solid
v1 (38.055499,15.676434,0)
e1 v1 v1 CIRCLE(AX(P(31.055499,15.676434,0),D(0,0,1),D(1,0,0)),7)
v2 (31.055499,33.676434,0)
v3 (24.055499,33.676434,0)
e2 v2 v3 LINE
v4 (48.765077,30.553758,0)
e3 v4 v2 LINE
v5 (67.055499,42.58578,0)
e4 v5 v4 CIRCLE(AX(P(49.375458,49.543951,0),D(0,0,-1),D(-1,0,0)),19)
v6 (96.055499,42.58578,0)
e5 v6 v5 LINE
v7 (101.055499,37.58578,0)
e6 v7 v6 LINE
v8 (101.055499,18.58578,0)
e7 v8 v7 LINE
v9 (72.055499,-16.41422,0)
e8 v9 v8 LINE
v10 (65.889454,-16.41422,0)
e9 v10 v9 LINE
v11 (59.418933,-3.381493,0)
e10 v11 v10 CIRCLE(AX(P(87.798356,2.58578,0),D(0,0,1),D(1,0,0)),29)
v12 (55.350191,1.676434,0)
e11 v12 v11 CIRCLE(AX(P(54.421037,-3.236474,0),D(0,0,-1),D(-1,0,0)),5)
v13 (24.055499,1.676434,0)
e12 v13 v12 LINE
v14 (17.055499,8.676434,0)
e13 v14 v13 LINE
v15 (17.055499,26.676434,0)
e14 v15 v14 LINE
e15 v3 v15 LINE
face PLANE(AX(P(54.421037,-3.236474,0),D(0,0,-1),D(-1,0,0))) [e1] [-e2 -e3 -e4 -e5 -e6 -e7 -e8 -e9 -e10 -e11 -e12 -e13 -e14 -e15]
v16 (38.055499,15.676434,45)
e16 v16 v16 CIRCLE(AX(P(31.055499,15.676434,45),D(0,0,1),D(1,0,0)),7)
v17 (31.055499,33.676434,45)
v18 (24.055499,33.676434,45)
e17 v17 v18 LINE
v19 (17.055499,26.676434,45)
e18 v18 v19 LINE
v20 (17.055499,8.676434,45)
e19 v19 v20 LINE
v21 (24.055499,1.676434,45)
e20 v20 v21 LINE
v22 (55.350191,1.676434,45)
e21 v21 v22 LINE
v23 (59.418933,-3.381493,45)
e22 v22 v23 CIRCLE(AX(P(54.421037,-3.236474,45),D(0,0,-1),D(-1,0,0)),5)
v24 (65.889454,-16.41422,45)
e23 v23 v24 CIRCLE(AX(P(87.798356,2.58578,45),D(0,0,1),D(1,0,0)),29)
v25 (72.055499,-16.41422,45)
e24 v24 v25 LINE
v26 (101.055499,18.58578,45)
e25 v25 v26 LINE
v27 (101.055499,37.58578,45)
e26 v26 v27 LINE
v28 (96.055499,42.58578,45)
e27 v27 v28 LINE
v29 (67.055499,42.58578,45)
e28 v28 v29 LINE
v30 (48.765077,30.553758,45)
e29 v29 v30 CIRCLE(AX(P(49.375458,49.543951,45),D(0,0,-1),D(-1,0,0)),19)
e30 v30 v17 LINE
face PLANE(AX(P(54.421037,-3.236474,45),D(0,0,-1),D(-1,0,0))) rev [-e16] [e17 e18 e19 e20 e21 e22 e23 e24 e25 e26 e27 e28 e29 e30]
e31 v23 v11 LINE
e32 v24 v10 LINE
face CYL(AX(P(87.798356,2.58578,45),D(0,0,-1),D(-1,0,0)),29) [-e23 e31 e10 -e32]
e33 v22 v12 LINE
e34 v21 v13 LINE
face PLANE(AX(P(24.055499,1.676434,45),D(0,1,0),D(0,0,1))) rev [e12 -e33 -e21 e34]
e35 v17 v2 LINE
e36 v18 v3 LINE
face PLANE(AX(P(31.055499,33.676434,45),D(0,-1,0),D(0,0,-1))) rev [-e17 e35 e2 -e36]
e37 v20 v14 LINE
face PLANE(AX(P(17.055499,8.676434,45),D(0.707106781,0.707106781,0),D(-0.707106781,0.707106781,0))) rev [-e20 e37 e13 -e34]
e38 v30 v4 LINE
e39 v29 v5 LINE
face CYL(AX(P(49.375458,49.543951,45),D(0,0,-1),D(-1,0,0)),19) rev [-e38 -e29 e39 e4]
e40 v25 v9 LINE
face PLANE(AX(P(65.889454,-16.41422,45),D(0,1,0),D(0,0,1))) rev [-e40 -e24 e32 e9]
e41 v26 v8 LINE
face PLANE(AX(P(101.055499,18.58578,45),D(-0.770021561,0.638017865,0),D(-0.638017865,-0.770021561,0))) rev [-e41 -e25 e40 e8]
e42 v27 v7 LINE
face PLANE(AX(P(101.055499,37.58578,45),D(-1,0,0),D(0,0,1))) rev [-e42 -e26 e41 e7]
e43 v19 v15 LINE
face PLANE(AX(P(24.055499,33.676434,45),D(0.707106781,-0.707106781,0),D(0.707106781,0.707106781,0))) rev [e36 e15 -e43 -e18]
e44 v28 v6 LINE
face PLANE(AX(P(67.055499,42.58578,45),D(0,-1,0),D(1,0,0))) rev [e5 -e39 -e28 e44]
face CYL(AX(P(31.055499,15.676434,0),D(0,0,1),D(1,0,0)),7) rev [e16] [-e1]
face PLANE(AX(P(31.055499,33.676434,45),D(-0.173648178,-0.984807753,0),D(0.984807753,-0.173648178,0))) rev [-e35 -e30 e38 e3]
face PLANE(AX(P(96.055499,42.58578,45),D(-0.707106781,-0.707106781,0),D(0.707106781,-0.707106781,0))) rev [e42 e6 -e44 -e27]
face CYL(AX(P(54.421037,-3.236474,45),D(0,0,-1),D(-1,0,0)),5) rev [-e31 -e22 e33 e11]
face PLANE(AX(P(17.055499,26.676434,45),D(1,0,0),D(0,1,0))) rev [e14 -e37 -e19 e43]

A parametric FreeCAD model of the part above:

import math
import FreeCAD as App
import Part
import Sketcher

V = App.Vector
Q = App.Units.Quantity

doc = App.newDocument("Part")
params = doc.addObject("Spreadsheet::Sheet", "Params")
for row, (alias, value) in enumerate([
    ("sketch1_radius", "19 mm"),
    ("sketch1_radius2", "5 mm"),
    ("sketch1_radius3", "29 mm"),
    ("sketch1_width", "29 mm"),
    ("sketch1_width2", "7 mm"),
    ("pad1_length", "45 mm"),
    ("sketch2_diameter", "14 mm"),
    ("pocket1_length", "45 mm"),
], start=1):
    params.set(f"A{row}", alias)
    params.set(f"B{row}", "=" + value)
    params.setAlias(f"B{row}", alias)

body = doc.addObject("PartDesign::Body", "Body")

# Sketch on XY plane
sketch1 = body.newObject("Sketcher::SketchObject", "Sketch")
sketch1.AttachmentSupport = (doc.getObject("XY_Plane"), [""])
sketch1.MapMode = "FlatFace"
sketch1.addGeometry(Part.LineSegment(V(96.055499, 42.58578, 0), V(67.055499, 42.58578, 0)), False)
sketch1.addGeometry(Part.ArcOfCircle(Part.Circle(V(49.375458, 49.543951, 0), V(0, 0, 1), 19), math.radians(-91.840959), math.radians(-21.482654)), False)
sketch1.addGeometry(Part.LineSegment(V(48.765077, 30.553758, 0), V(31.055499, 33.676434, 0)), False)
sketch1.addGeometry(Part.LineSegment(V(31.055499, 33.676434, 0), V(24.055499, 33.676434, 0)), False)
sketch1.addGeometry(Part.LineSegment(V(24.055499, 33.676434, 0), V(17.055499, 26.676434, 0)), False)
sketch1.addGeometry(Part.LineSegment(V(17.055499, 26.676434, 0), V(17.055499, 8.676434, 0)), False)
sketch1.addGeometry(Part.LineSegment(V(17.055499, 8.676434, 0), V(24.055499, 1.676434, 0)), False)
sketch1.addGeometry(Part.LineSegment(V(24.055499, 1.676434, 0), V(55.350191, 1.676434, 0)), False)
sketch1.addGeometry(Part.ArcOfCircle(Part.Circle(V(54.421037, -3.236474, 0), V(0, 0, 1), 5), math.radians(-1.662029), math.radians(79.290421)), False)
sketch1.addGeometry(Part.ArcOfCircle(Part.Circle(V(87.798356, 2.58578, 0), V(0, 0, 1), 29), math.radians(-168.125537), math.radians(-139.067275)), False)
sketch1.addGeometry(Part.LineSegment(V(65.889454, -16.41422, 0), V(72.055499, -16.41422, 0)), False)
sketch1.addGeometry(Part.LineSegment(V(72.055499, -16.41422, 0), V(101.055499, 18.58578, 0)), False)
sketch1.addGeometry(Part.LineSegment(V(101.055499, 18.58578, 0), V(101.055499, 37.58578, 0)), False)
sketch1.addGeometry(Part.LineSegment(V(101.055499, 37.58578, 0), V(96.055499, 42.58578, 0)), False)
sketch1.addConstraint(Sketcher.Constraint("Coincident", 0, 2, 1, 2))
sketch1.addConstraint(Sketcher.Constraint("Coincident", 1, 1, 2, 1))
sketch1.addConstraint(Sketcher.Constraint("Coincident", 2, 2, 3, 1))
sketch1.addConstraint(Sketcher.Constraint("Coincident", 3, 2, 4, 1))
sketch1.addConstraint(Sketcher.Constraint("Coincident", 4, 2, 5, 1))
sketch1.addConstraint(Sketcher.Constraint("Coincident", 5, 2, 6, 1))
sketch1.addConstraint(Sketcher.Constraint("Coincident", 6, 2, 7, 1))
sketch1.addConstraint(Sketcher.Constraint("Coincident", 7, 2, 8, 2))
sketch1.addConstraint(Sketcher.Constraint("Coincident", 8, 1, 9, 1))
sketch1.addConstraint(Sketcher.Constraint("Coincident", 9, 2, 10, 1))
sketch1.addConstraint(Sketcher.Constraint("Coincident", 10, 2, 11, 1))
sketch1.addConstraint(Sketcher.Constraint("Coincident", 11, 2, 12, 1))
sketch1.addConstraint(Sketcher.Constraint("Coincident", 12, 2, 13, 1))
sketch1.addConstraint(Sketcher.Constraint("Coincident", 13, 2, 0, 1))
sketch1.addConstraint(Sketcher.Constraint("Horizontal", 0))
sketch1.addConstraint(Sketcher.Constraint("Horizontal", 3))
sketch1.addConstraint(Sketcher.Constraint("Vertical", 5))
sketch1.addConstraint(Sketcher.Constraint("Horizontal", 7))
sketch1.addConstraint(Sketcher.Constraint("Horizontal", 10))
sketch1.addConstraint(Sketcher.Constraint("Vertical", 12))
sketch1.addConstraint(Sketcher.Constraint("Perpendicular", 4, 6))
sketch1.addConstraint(Sketcher.Constraint("Parallel", 6, 13))
sketch1.addConstraint(Sketcher.Constraint("Vertical", 3, 2, 6, 2))
sketch1.addConstraint(Sketcher.Constraint("Equal", 4, 6))
sketch1.addConstraint(Sketcher.Constraint("Radius", 1, Q("19 mm")))
sketch1.addConstraint(Sketcher.Constraint("Radius", 8, Q("5 mm")))
sketch1.addConstraint(Sketcher.Constraint("Radius", 9, Q("29 mm")))
sketch1.addConstraint(Sketcher.Constraint("DistanceX", 0, 2, 0, 1, Q("29 mm")))
sketch1.addConstraint(Sketcher.Constraint("DistanceX", 3, 2, 3, 1, Q("7 mm")))
sketch1.addConstraint(Sketcher.Constraint("DistanceY", 5, 2, 5, 1, Q("18 mm")))
sketch1.addConstraint(Sketcher.Constraint("DistanceY", 12, 1, 12, 2, Q("19 mm")))
sketch1.addConstraint(Sketcher.Constraint("Angle", 2, Q("170 deg")))
sketch1.addConstraint(Sketcher.Constraint("DistanceY", 9, 3, 0, 2, Q("40 mm")))
sketch1.addConstraint(Sketcher.Constraint("DistanceX", 2, 2, 0, 2, Q("36 mm")))
sketch1.addConstraint(Sketcher.Constraint("DistanceX", 4, 2, 3, 2, Q("7 mm")))
sketch1.addConstraint(Sketcher.Constraint("DistanceY", 9, 2, 9, 3, Q("19 mm")))
sketch1.addConstraint(Sketcher.Constraint("DistanceY", 9, 3, 11, 2, Q("16 mm")))
sketch1.addConstraint(Sketcher.Constraint("DistanceX", 10, 2, 11, 2, Q("29 mm")))
sketch1.addConstraint(Sketcher.Constraint("DistanceX", -1, 1, 0, 2, Q("67.055499 mm")))
sketch1.addConstraint(Sketcher.Constraint("DistanceX", 1, 3, 9, 3, Q("38.422898 mm")))
sketch1.addConstraint(Sketcher.Constraint("DistanceX", 7, 1, 7, 2, Q("31.294692 mm")))
sketch1.addConstraint(Sketcher.Constraint("DistanceX", 10, 1, 10, 2, Q("6.166045 mm")))
sketch1.addConstraint(Sketcher.Constraint("DistanceY", -1, 1, 1, 3, Q("49.543951 mm")))
sketch1.addConstraint(Sketcher.Constraint("DistanceX", 1, 3, 8, 3, Q("5.045579 mm")))
sketch1.addConstraint(Sketcher.Constraint("DistanceX", 1, 1, 1, 3, Q("0.61038 mm")))
sketch1.setExpression("Constraints[24]", "Params.sketch1_radius")
sketch1.setExpression("Constraints[25]", "Params.sketch1_radius2")
sketch1.setExpression("Constraints[26]", "Params.sketch1_radius3")
sketch1.setExpression("Constraints[27]", "Params.sketch1_width")
sketch1.setExpression("Constraints[28]", "Params.sketch1_width2")
pad1 = body.newObject("PartDesign::Pad", "Pad")
pad1.Profile = sketch1
pad1.setExpression("Length", "Params.pad1_length")

# Sketch on XY plane
sketch2 = body.newObject("Sketcher::SketchObject", "Sketch001")
sketch2.AttachmentSupport = (doc.getObject("XY_Plane"), [""])
sketch2.MapMode = "FlatFace"
sketch2.AttachmentOffset = App.Placement(V(0, 0, 45), App.Rotation())
sketch2.addGeometry(Part.Circle(V(31.055499, 15.676434, 0), V(0, 0, 1), 7), False)
sketch2.addConstraint(Sketcher.Constraint("Diameter", 0, Q("14 mm")))
sketch2.addConstraint(Sketcher.Constraint("DistanceX", -1, 1, 0, 3, Q("31.055499 mm")))
sketch2.addConstraint(Sketcher.Constraint("DistanceY", -1, 1, 0, 3, Q("15.676434 mm")))
sketch2.setExpression("Constraints[0]", "Params.sketch2_diameter")
pocket1 = body.newObject("PartDesign::Pocket", "Pocket")
pocket1.Profile = sketch2
pocket1.setExpression("Length", "Params.pocket1_length")

doc.recompute()
